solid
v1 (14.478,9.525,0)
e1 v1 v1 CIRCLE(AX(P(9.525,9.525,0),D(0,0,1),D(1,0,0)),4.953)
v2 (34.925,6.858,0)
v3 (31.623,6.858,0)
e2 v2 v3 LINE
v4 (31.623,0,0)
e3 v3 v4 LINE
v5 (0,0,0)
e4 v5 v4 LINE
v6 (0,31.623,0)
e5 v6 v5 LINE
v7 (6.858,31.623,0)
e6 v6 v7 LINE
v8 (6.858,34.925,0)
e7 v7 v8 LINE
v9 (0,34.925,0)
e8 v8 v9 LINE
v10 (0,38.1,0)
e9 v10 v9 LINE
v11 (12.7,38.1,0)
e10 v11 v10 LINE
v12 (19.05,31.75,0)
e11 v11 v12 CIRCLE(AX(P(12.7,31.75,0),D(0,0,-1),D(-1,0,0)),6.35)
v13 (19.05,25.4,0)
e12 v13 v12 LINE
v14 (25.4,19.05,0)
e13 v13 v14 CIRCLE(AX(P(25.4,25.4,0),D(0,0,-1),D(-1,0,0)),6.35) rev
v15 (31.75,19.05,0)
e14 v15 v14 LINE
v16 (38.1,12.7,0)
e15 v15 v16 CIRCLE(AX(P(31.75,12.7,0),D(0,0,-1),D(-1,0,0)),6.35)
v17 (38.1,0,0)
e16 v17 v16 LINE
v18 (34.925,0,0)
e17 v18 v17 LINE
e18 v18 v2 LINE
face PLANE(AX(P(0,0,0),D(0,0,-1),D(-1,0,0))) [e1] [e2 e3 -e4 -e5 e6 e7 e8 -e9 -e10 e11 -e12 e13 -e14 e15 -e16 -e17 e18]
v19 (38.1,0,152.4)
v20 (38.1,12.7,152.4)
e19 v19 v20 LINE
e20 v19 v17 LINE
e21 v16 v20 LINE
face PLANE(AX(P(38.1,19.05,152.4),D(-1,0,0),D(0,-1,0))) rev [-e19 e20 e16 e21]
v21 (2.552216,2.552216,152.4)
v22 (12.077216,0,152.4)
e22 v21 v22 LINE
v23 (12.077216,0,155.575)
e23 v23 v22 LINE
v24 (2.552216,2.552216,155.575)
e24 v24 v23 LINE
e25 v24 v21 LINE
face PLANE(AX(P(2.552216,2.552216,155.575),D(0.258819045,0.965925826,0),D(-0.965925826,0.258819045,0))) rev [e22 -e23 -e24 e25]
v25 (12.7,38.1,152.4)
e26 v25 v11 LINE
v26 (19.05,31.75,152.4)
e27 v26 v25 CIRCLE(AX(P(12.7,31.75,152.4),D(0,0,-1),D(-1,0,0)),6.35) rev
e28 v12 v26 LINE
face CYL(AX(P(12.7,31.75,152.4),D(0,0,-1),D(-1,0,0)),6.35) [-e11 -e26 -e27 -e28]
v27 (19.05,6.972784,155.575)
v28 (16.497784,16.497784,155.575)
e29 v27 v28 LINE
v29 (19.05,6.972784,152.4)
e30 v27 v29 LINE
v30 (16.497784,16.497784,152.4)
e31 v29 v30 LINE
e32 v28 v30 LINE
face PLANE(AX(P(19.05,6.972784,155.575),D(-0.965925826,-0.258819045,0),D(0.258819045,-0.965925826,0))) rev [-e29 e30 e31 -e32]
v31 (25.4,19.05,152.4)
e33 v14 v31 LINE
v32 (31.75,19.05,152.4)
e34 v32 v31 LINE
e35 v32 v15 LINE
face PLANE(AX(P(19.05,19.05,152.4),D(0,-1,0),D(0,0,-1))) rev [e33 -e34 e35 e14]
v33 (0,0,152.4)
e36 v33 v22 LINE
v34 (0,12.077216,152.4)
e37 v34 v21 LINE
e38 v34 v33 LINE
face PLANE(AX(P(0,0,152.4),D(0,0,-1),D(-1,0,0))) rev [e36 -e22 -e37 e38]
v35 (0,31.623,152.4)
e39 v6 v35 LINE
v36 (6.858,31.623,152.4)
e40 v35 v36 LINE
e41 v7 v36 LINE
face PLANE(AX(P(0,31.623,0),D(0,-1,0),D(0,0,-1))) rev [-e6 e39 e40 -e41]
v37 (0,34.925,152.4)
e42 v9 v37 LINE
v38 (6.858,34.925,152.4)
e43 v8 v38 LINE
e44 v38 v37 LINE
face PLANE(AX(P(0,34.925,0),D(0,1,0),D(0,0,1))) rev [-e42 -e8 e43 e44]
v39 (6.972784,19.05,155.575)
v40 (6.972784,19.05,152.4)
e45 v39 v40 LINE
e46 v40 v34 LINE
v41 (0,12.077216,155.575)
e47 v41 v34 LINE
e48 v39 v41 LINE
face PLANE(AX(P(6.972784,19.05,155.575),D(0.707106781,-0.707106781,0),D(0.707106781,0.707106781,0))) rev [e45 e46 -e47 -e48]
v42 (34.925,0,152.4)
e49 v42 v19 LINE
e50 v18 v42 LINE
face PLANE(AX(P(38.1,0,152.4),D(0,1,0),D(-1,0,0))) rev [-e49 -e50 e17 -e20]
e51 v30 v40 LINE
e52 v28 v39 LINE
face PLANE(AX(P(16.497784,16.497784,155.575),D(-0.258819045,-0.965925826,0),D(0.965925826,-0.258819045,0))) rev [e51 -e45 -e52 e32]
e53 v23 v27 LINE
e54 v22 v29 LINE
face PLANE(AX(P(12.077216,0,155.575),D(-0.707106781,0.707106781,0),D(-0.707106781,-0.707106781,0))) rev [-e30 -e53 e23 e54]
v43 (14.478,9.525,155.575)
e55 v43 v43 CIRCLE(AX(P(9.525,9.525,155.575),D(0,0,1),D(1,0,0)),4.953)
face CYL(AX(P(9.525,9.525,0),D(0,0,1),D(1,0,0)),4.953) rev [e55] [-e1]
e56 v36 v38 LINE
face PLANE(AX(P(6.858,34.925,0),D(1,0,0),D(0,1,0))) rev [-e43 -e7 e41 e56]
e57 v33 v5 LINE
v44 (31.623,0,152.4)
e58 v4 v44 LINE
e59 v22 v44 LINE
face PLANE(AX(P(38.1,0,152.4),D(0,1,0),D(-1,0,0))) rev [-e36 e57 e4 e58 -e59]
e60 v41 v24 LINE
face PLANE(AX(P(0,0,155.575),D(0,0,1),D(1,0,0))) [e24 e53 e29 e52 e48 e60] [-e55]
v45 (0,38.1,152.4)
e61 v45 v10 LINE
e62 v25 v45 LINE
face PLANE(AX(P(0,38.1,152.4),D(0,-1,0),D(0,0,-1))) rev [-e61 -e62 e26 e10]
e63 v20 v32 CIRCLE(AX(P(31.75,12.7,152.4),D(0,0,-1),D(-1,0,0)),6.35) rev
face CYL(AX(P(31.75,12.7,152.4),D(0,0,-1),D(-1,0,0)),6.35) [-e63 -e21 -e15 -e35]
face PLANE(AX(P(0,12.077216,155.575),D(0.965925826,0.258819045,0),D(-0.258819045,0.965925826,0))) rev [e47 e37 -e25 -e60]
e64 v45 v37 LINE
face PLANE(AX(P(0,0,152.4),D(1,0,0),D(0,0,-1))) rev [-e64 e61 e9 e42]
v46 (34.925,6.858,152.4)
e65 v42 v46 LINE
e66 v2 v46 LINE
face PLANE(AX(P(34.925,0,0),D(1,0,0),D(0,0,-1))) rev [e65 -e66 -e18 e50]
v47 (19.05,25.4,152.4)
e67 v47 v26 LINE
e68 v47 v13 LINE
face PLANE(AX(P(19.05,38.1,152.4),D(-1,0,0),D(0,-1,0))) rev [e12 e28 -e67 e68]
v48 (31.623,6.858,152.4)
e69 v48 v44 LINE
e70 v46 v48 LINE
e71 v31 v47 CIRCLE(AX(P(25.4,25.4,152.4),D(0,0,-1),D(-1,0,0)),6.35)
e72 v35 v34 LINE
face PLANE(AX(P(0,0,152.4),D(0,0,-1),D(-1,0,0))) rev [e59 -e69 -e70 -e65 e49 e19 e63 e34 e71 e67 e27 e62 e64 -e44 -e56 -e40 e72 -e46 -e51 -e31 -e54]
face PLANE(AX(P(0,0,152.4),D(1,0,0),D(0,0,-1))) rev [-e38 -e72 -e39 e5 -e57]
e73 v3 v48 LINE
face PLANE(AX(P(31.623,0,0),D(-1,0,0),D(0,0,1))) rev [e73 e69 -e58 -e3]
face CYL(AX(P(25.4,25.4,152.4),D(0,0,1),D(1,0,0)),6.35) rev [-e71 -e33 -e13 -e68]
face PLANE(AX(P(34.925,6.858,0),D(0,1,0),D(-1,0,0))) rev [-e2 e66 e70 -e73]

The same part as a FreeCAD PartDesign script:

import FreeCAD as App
import Part
import Sketcher
from FreeCAD import Vector
Q = App.Units.Quantity


def edges_at(feature, points):
    """Names of the edges that pass closest to the given points."""
    edges = feature.Shape.Edges
    near = lambda p: min(range(len(edges)), key=lambda i: edges[i].distToShape(Part.Vertex(*p))[0])
    return sorted({f"Edge{near(p) + 1}" for p in points})

doc = App.newDocument("Part")
params = doc.addObject("Spreadsheet::Sheet", "Params")
for row, (alias, value) in enumerate([
    ("sketch1_width", "1.5 in"),
    ("pad1_length", "6 in"),
    ("sketch2_width", "0.27 in"),
    ("sketch2_width2", "0.13 in"),
    ("pad2_length", "0.125 in"),
    ("fillet_radius", "0.25 in"),
    ("sketch4_diameter", "0.39 in"),
], start=1):
    params.set(f"A{row}", alias)
    params.set(f"B{row}", "=" + value)
    params.setAlias(f"B{row}", alias)

body = doc.addObject("PartDesign::Body", "Body")

# Sketch on XY plane
sketch1 = body.newObject("Sketcher::SketchObject", "Sketch")
sketch1.AttachmentSupport = (doc.getObject("XY_Plane"), [""])
sketch1.MapMode = "FlatFace"
sketch1.addGeometry(Part.LineSegment(Vector(0, 38, 0), Vector(0, 0, 0)), False)
sketch1.addGeometry(Part.LineSegment(Vector(0, 0, 0), Vector(38, 0, 0)), False)
sketch1.addGeometry(Part.LineSegment(Vector(38, 0, 0), Vector(38, 19, 0)), False)
sketch1.addGeometry(Part.LineSegment(Vector(38, 19, 0), Vector(19, 19, 0)), False)
sketch1.addGeometry(Part.LineSegment(Vector(19, 19, 0), Vector(19, 38, 0)), False)
sketch1.addGeometry(Part.LineSegment(Vector(19, 38, 0), Vector(0, 38, 0)), False)
sketch1.addConstraint(Sketcher.Constraint("Coincident", 0, 2, 1, 1))
sketch1.addConstraint(Sketcher.Constraint("Coincident", 1, 2, 2, 1))
sketch1.addConstraint(Sketcher.Constraint("Coincident", 2, 2, 3, 1))
sketch1.addConstraint(Sketcher.Constraint("Coincident", 3, 2, 4, 1))
sketch1.addConstraint(Sketcher.Constraint("Coincident", 4, 2, 5, 1))
sketch1.addConstraint(Sketcher.Constraint("Coincident", 5, 2, 0, 1))
sketch1.addConstraint(Sketcher.Constraint("Vertical", 0))
sketch1.addConstraint(Sketcher.Constraint("Horizontal", 1))
sketch1.addConstraint(Sketcher.Constraint("Vertical", 2))
sketch1.addConstraint(Sketcher.Constraint("Horizontal", 3))
sketch1.addConstraint(Sketcher.Constraint("Vertical", 4))
sketch1.addConstraint(Sketcher.Constraint("Horizontal", 5))
sketch1.addConstraint(Sketcher.Constraint("Coincident", 0, 2, -1, 1))
sketch1.addConstraint(Sketcher.Constraint("Equal", 3, 5))
sketch1.addConstraint(Sketcher.Constraint("Equal", 1, 0))
sketch1.addConstraint(Sketcher.Constraint("Equal", 5, 2))
sketch1.addConstraint(Sketcher.Constraint("DistanceX", 1, 1, 1, 2, Q("1.5 in")))
sketch1.setExpression("Constraints[16]", "Params.sketch1_width")
pad1 = body.newObject("PartDesign::Pad", "Pad")
pad1.Profile = sketch1
pad1.setExpression("Length", "Params.pad1_length")

# Sketch on XY plane
sketch2 = body.newObject("Sketcher::SketchObject", "Sketch001")
sketch2.AttachmentSupport = (doc.getObject("XY_Plane"), [""])
sketch2.MapMode = "FlatFace"
sketch2.AttachmentOffset = App.Placement(Vector(0, 0, 6 * 25.4), App.Rotation())
sketch2.addGeometry(Part.LineSegment(Vector(0, 34.9, 0), Vector(0, 31.6, 0)), False)
sketch2.addGeometry(Part.LineSegment(Vector(0, 31.6, 0), Vector(6.9, 31.6, 0)), False)
sketch2.addGeometry(Part.LineSegment(Vector(6.9, 31.6, 0), Vector(6.9, 34.9, 0)), False)
sketch2.addGeometry(Part.LineSegment(Vector(6.9, 34.9, 0), Vector(0, 34.9, 0)), False)
sketch2.addGeometry(Part.LineSegment(Vector(31.6, 6.9, 0), Vector(31.6, 0, 0)), False)
sketch2.addGeometry(Part.LineSegment(Vector(31.6, 0, 0), Vector(34.9, 0, 0)), False)
sketch2.addGeometry(Part.LineSegment(Vector(34.9, 0, 0), Vector(34.9, 6.9, 0)), False)
sketch2.addGeometry(Part.LineSegment(Vector(34.9, 6.9, 0), Vector(31.6, 6.9, 0)), False)
sketch2.addConstraint(Sketcher.Constraint("Coincident", 0, 2, 1, 1))
sketch2.addConstraint(Sketcher.Constraint("Coincident", 1, 2, 2, 1))
sketch2.addConstraint(Sketcher.Constraint("Coincident", 2, 2, 3, 1))
sketch2.addConstraint(Sketcher.Constraint("Coincident", 3, 2, 0, 1))
sketch2.addConstraint(Sketcher.Constraint("Coincident", 4, 2, 5, 1))
sketch2.addConstraint(Sketcher.Constraint("Coincident", 5, 2, 6, 1))
sketch2.addConstraint(Sketcher.Constraint("Coincident", 6, 2, 7, 1))
sketch2.addConstraint(Sketcher.Constraint("Coincident", 7, 2, 4, 1))
sketch2.addConstraint(Sketcher.Constraint("Vertical", 0))
sketch2.addConstraint(Sketcher.Constraint("Horizontal", 1))
sketch2.addConstraint(Sketcher.Constraint("Vertical", 2))
sketch2.addConstraint(Sketcher.Constraint("Horizontal", 3))
sketch2.addConstraint(Sketcher.Constraint("Vertical", 4))
sketch2.addConstraint(Sketcher.Constraint("Horizontal", 5))
sketch2.addConstraint(Sketcher.Constraint("Vertical", 6))
sketch2.addConstraint(Sketcher.Constraint("Horizontal", 7))
sketch2.addConstraint(Sketcher.Constraint("PointOnObject", 0, 2, -2))
sketch2.addConstraint(Sketcher.Constraint("PointOnObject", 4, 2, -1))
sketch2.addConstraint(Sketcher.Constraint("Equal", 7, 0))
sketch2.addConstraint(Sketcher.Constraint("Equal", 3, 4))
sketch2.addConstraint(Sketcher.Constraint("DistanceX", 1, 1, 1, 2, Q("0.27 in")))
sketch2.addConstraint(Sketcher.Constraint("DistanceX", 5, 1, 5, 2, Q("0.13 in")))
sketch2.addConstraint(Sketcher.Constraint("DistanceY", -1, 1, 0, 2, Q("1.245 in")))
sketch2.addConstraint(Sketcher.Constraint("DistanceX", -1, 1, 4, 2, Q("1.245 in")))
sketch2.setExpression("Constraints[20]", "Params.sketch2_width")
sketch2.setExpression("Constraints[21]", "Params.sketch2_width2")
pocket1 = body.newObject("PartDesign::Pocket", "Pocket")
pocket1.Profile = sketch2
pocket1.Type = "ThroughAll"

# Sketch on XY plane
sketch3 = body.newObject("Sketcher::SketchObject", "Sketch002")
sketch3.AttachmentSupport = (doc.getObject("XY_Plane"), [""])
sketch3.MapMode = "FlatFace"
sketch3.AttachmentOffset = App.Placement(Vector(0, 0, 6 * 25.4), App.Rotation())
sketch3.addGeometry(Part.LineSegment(Vector(16, 16, 0), Vector(7, 19, 0)), False)
sketch3.addGeometry(Part.LineSegment(Vector(7, 19, 0), Vector(0, 12, 0)), False)
sketch3.addGeometry(Part.LineSegment(Vector(0, 12, 0), Vector(3, 3, 0)), False)
sketch3.addGeometry(Part.LineSegment(Vector(3, 3, 0), Vector(12, 0, 0)), False)
sketch3.addGeometry(Part.LineSegment(Vector(12, 0, 0), Vector(19, 7, 0)), False)
sketch3.addGeometry(Part.LineSegment(Vector(19, 7, 0), Vector(16, 16, 0)), False)
sketch3.addConstraint(Sketcher.Constraint("Coincident", 0, 2, 1, 1))
sketch3.addConstraint(Sketcher.Constraint("Coincident", 1, 2, 2, 1))
sketch3.addConstraint(Sketcher.Constraint("Coincident", 2, 2, 3, 1))
sketch3.addConstraint(Sketcher.Constraint("Coincident", 3, 2, 4, 1))
sketch3.addConstraint(Sketcher.Constraint("Coincident", 4, 2, 5, 1))
sketch3.addConstraint(Sketcher.Constraint("Coincident", 5, 2, 0, 1))
sketch3.addConstraint(Sketcher.Constraint("PointOnObject", 1, 2, -2))
sketch3.addConstraint(Sketcher.Constraint("PointOnObject", 3, 2, -1))
sketch3.addConstraint(Sketcher.Constraint("Parallel", 0, 3))
sketch3.addConstraint(Sketcher.Constraint("Parallel", 1, 4))
sketch3.addConstraint(Sketcher.Constraint("Parallel", 2, 5))
sketch3.addConstraint(Sketcher.Constraint("Equal", 0, 1))
sketch3.addConstraint(Sketcher.Constraint("Equal", 1, 2))
sketch3.addConstraint(Sketcher.Constraint("Equal", 2, 3))
sketch3.addConstraint(Sketcher.Constraint("Angle", 0, Q("165 deg")))
sketch3.addConstraint(Sketcher.Constraint("Angle", 1, Q("-135 deg")))
sketch3.addConstraint(Sketcher.Constraint("Angle", 2, Q("-75 deg")))
sketch3.addConstraint(Sketcher.Constraint("DistanceY", -1, 1, 0, 2, Q("0.75 in")))
pad2 = body.newObject("PartDesign::Pad", "Pad001")
pad2.Profile = sketch3
pad2.setExpression("Length", "Params.pad2_length")
doc.recompute()

fillet = body.newObject("PartDesign::Fillet", "Fillet")
fillet.Base = (pad2, edges_at(pad2, [(19.05, 38.1, 76.2), (19.05, 19.05, 76.2), (38.1, 19.05, 76.2)]))
fillet.setExpression("Radius", "Params.fillet_radius")

# Sketch on XY plane
sketch4 = body.newObject("Sketcher::SketchObject", "Sketch003")
sketch4.AttachmentSupport = (doc.getObject("XY_Plane"), [""])
sketch4.MapMode = "FlatFace"
sketch4.AttachmentOffset = App.Placement(Vector(0, 0, 6.125 * 25.4), App.Rotation())
sketch4.addGeometry(Part.Circle(Vector(9.5, 9.5, 0), Vector(0, 0, 1), 5), False)
sketch4.addConstraint(Sketcher.Constraint("Diameter", 0, Q("0.39 in")))
sketch4.addConstraint(Sketcher.Constraint("DistanceX", -1, 1, 0, 3, Q("0.375 in")))
sketch4.addConstraint(Sketcher.Constraint("DistanceY", -1, 1, 0, 3, Q("0.375 in")))
sketch4.setExpression("Constraints[0]", "Params.sketch4_diameter")
pocket2 = body.newObject("PartDesign::Pocket", "Pocket001")
pocket2.Profile = sketch4
pocket2.Type = "ThroughAll"

doc.recompute()
